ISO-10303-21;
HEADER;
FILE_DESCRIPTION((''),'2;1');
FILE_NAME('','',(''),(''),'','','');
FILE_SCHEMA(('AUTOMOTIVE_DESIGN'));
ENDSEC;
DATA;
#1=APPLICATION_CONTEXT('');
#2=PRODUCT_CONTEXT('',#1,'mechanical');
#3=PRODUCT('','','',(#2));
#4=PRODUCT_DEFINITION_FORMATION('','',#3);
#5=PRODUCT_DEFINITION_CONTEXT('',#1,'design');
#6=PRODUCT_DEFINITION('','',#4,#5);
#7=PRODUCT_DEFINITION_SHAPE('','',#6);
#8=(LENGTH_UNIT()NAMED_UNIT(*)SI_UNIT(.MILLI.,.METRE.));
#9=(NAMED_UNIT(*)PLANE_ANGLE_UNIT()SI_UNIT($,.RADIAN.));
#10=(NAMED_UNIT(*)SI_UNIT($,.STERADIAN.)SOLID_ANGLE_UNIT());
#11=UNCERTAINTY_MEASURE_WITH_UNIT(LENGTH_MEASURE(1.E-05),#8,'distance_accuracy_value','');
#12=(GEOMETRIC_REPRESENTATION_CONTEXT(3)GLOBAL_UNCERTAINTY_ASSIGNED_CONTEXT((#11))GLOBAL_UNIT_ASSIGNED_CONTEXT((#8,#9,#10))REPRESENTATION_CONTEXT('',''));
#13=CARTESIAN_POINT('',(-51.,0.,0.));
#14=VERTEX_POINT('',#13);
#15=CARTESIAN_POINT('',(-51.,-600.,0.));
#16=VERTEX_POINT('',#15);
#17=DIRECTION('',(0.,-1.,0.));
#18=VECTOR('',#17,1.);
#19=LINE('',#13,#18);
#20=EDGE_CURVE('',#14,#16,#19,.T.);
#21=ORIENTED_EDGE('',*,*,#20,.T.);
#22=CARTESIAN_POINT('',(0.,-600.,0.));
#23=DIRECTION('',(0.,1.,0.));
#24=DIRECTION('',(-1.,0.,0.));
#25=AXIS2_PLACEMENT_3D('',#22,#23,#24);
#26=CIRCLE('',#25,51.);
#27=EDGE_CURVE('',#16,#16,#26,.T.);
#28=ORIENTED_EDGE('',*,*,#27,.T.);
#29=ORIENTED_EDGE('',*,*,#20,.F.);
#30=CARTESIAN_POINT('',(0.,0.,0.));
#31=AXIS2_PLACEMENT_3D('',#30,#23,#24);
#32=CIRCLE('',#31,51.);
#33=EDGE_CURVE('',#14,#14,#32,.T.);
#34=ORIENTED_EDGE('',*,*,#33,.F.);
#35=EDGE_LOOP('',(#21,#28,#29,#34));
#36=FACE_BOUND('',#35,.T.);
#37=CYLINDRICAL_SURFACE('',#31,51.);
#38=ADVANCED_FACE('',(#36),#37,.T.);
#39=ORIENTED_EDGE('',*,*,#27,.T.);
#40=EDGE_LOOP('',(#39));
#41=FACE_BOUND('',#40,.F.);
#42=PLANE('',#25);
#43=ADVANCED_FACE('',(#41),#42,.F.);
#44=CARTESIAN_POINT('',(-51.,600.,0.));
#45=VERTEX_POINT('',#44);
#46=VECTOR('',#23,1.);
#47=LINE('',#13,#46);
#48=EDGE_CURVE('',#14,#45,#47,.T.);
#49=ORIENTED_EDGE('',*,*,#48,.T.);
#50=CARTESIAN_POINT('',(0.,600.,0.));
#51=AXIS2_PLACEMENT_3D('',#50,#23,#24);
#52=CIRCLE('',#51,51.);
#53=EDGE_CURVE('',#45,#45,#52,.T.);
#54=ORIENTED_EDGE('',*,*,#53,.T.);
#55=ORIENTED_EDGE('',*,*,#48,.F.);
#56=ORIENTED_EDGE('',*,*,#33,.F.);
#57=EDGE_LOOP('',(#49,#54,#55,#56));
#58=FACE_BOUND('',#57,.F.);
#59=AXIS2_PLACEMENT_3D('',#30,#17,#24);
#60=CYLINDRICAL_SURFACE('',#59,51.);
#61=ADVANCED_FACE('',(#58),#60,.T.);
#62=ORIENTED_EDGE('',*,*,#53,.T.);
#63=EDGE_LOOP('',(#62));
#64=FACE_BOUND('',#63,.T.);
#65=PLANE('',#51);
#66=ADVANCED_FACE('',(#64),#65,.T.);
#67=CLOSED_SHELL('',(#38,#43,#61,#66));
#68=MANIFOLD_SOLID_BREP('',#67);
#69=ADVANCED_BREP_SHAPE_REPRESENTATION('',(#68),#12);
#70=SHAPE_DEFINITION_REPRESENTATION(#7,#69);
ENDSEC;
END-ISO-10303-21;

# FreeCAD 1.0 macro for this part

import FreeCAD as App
import Part
import Sketcher

doc = App.newDocument("Part")
body = doc.addObject("PartDesign::Body", "Body")

# Sketch on XZ plane
sketch1 = body.newObject("Sketcher::SketchObject", "Sketch")
sketch1.AttachmentSupport = (doc.getObject("XZ_Plane"), [""])
sketch1.MapMode = "FlatFace"
sketch1.addGeometry(Part.Circle(App.Vector(0, 0, 0), App.Vector(0, 0, 1), 51), False)
sketch1.addConstraint([
    Sketcher.Constraint("Coincident", 0, 3, -1, 1),
    Sketcher.Constraint("Diameter", 0, 102.0),
])
pad1 = body.newObject("PartDesign::Pad", "Pad")
pad1.Profile = sketch1
pad1.Length = 1200
pad1.Midplane = True

doc.recompute()
